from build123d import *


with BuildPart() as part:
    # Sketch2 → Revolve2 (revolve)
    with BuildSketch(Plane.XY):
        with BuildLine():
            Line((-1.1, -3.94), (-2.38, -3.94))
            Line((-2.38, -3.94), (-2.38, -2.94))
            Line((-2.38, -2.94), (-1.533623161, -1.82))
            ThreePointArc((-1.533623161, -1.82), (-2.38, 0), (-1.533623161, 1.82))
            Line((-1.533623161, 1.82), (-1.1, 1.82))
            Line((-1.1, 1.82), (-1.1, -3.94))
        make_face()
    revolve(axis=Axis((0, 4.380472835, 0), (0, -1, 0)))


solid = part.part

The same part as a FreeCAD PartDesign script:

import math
import FreeCAD as App
import Part
import Sketcher
from FreeCAD import Vector
Q = App.Units.Quantity

doc = App.newDocument("Part")
params = doc.addObject("Spreadsheet::Sheet", "Params")
for row, (alias, value) in enumerate([
    ("sketch1_height", "1 mm"),
    ("sketch1_radius", "2.38 mm"),
    ("sketch1_width", "1.28 mm"),
    ("sketch1_height2", "5.76 mm"),
    ("revolution_angle", "360 deg"),
], start=1):
    params.set(f"A{row}", alias)
    params.set(f"B{row}", "=" + value)
    params.setAlias(f"B{row}", alias)

body = doc.addObject("PartDesign::Body", "Body")

# Sketch on XY plane
sketch1 = doc.addObject("Sketcher::SketchObject", "Sketch")
body.addObject(sketch1)
sketch1.AttachmentSupport = (doc.XY_Plane, [""])
sketch1.MapMode = "FlatFace"
sketch1.addGeometry([
    Part.LineSegment(Vector(-2.38, -3.94, 0), Vector(-1.1, -3.94, 0)),  # 0
    Part.LineSegment(Vector(-1.1, -3.94, 0), Vector(-1.1, 1.82, 0)),  # 1
    Part.LineSegment(Vector(-1.1, 1.82, 0), Vector(-1.53, 1.82, 0)),  # 2
    Part.ArcOfCircle(Part.Circle(Vector(0, 0, 0), Vector(0, 0, 1), 2.38), math.radians(130), math.radians(230)),  # 3
    Part.LineSegment(Vector(-1.53, -1.82, 0), Vector(-2.38, -2.94, 0)),  # 4
    Part.LineSegment(Vector(-2.38, -2.94, 0), Vector(-2.38, -3.94, 0)),  # 5
], False)
sketch1.addConstraint([
    Sketcher.Constraint("Coincident", 0, 2, 1, 1),
    Sketcher.Constraint("Coincident", 1, 2, 2, 1),
    Sketcher.Constraint("Coincident", 2, 2, 3, 1),
    Sketcher.Constraint("Coincident", 3, 2, 4, 1),
    Sketcher.Constraint("Coincident", 4, 2, 5, 1),
    Sketcher.Constraint("Coincident", 5, 2, 0, 1),
    Sketcher.Constraint("Horizontal", 0),
    Sketcher.Constraint("Vertical", 1),
    Sketcher.Constraint("Horizontal", 2),
    Sketcher.Constraint("Vertical", 5),
    Sketcher.Constraint("Coincident", 3, 3, -1, 1),
    Sketcher.Constraint("Vertical", 2, 2, 3, 2),
    Sketcher.Constraint("DistanceY", 5, 2, 5, 1, Q("1 mm")),
    Sketcher.Constraint("Radius", 3, Q("2.38 mm")),
    Sketcher.Constraint("DistanceX", 0, 1, 0, 2, Q("1.28 mm")),
    Sketcher.Constraint("DistanceY", 1, 1, 1, 2, Q("5.76 mm")),
    Sketcher.Constraint("DistanceX", 0, 2, -1, 1, Q("1.1 mm")),
    Sketcher.Constraint("DistanceY", 0, 2, -1, 1, Q("3.94 mm")),
])
sketch1.setExpression("Constraints[12]", "Params.sketch1_height")
sketch1.setExpression("Constraints[13]", "Params.sketch1_radius")
sketch1.setExpression("Constraints[14]", "Params.sketch1_width")
sketch1.setExpression("Constraints[15]", "Params.sketch1_height2")
revolution = doc.addObject("PartDesign::Revolution", "Revolution")
body.addObject(revolution)
revolution.Profile = sketch1
revolution.ReferenceAxis = (sketch1, ["V_Axis"])
revolution.setExpression("Angle", "Params.revolution_angle")

doc.recompute()
